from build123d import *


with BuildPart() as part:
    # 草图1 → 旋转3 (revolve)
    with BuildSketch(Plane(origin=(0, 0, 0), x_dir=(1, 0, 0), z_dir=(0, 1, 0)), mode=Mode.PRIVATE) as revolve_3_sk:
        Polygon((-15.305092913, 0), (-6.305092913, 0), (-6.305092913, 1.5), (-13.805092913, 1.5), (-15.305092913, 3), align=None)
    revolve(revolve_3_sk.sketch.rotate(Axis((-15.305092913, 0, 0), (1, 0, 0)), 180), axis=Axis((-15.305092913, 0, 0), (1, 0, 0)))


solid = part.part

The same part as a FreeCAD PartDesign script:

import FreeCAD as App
import Part
import Sketcher

V = App.Vector
Q = App.Units.Quantity

doc = App.newDocument("Part")
body = doc.addObject("PartDesign::Body", "Body")

sketch1 = doc.addObject("Sketcher::SketchObject", "Sketch")
body.addObject(sketch1)
sketch1.AttachmentSupport = (doc.XZ_Plane, [""])
sketch1.MapMode = "FlatFace"
sketch1.addGeometry([
    Part.LineSegment(V(-15.3, 0, 0), V(-6.3, 0, 0)),
    Part.LineSegment(V(-6.3, 0, 0), V(-6.3, -1.5, 0)),
    Part.LineSegment(V(-6.3, -1.5, 0), V(-13.8, -1.5, 0)),
    Part.LineSegment(V(-13.8, -1.5, 0), V(-15.3, -3, 0)),
    Part.LineSegment(V(-15.3, -3, 0), V(-15.3, 0, 0)),
], False)
sketch1.addConstraint([
    Sketcher.Constraint("Coincident", 0, 2, 1, 1),
    Sketcher.Constraint("Coincident", 1, 2, 2, 1),
    Sketcher.Constraint("Coincident", 2, 2, 3, 1),
    Sketcher.Constraint("Coincident", 3, 2, 4, 1),
    Sketcher.Constraint("Coincident", 4, 2, 0, 1),
    Sketcher.Constraint("Horizontal", 0),
    Sketcher.Constraint("Vertical", 1),
    Sketcher.Constraint("Horizontal", 2),
    Sketcher.Constraint("Vertical", 4),
    Sketcher.Constraint("PointOnObject", 0, 2, -1),
    Sketcher.Constraint("DistanceX", 0, 1, 0, 2, 9.0),
    Sketcher.Constraint("DistanceY", 4, 1, 4, 2, 3.0),
    Sketcher.Constraint("Angle", 3, Q("-135 deg")),
    Sketcher.Constraint("DistanceX", 2, 2, 2, 1, 7.5),
    Sketcher.Constraint("DistanceX", 0, 2, -1, 1, 6.305093),
])
revolution = doc.addObject("PartDesign::Revolution", "Revolution")
body.addObject(revolution)
revolution.Profile = sketch1
revolution.ReferenceAxis = (sketch1, ["H_Axis"])
revolution.Angle = 360

doc.recompute()
